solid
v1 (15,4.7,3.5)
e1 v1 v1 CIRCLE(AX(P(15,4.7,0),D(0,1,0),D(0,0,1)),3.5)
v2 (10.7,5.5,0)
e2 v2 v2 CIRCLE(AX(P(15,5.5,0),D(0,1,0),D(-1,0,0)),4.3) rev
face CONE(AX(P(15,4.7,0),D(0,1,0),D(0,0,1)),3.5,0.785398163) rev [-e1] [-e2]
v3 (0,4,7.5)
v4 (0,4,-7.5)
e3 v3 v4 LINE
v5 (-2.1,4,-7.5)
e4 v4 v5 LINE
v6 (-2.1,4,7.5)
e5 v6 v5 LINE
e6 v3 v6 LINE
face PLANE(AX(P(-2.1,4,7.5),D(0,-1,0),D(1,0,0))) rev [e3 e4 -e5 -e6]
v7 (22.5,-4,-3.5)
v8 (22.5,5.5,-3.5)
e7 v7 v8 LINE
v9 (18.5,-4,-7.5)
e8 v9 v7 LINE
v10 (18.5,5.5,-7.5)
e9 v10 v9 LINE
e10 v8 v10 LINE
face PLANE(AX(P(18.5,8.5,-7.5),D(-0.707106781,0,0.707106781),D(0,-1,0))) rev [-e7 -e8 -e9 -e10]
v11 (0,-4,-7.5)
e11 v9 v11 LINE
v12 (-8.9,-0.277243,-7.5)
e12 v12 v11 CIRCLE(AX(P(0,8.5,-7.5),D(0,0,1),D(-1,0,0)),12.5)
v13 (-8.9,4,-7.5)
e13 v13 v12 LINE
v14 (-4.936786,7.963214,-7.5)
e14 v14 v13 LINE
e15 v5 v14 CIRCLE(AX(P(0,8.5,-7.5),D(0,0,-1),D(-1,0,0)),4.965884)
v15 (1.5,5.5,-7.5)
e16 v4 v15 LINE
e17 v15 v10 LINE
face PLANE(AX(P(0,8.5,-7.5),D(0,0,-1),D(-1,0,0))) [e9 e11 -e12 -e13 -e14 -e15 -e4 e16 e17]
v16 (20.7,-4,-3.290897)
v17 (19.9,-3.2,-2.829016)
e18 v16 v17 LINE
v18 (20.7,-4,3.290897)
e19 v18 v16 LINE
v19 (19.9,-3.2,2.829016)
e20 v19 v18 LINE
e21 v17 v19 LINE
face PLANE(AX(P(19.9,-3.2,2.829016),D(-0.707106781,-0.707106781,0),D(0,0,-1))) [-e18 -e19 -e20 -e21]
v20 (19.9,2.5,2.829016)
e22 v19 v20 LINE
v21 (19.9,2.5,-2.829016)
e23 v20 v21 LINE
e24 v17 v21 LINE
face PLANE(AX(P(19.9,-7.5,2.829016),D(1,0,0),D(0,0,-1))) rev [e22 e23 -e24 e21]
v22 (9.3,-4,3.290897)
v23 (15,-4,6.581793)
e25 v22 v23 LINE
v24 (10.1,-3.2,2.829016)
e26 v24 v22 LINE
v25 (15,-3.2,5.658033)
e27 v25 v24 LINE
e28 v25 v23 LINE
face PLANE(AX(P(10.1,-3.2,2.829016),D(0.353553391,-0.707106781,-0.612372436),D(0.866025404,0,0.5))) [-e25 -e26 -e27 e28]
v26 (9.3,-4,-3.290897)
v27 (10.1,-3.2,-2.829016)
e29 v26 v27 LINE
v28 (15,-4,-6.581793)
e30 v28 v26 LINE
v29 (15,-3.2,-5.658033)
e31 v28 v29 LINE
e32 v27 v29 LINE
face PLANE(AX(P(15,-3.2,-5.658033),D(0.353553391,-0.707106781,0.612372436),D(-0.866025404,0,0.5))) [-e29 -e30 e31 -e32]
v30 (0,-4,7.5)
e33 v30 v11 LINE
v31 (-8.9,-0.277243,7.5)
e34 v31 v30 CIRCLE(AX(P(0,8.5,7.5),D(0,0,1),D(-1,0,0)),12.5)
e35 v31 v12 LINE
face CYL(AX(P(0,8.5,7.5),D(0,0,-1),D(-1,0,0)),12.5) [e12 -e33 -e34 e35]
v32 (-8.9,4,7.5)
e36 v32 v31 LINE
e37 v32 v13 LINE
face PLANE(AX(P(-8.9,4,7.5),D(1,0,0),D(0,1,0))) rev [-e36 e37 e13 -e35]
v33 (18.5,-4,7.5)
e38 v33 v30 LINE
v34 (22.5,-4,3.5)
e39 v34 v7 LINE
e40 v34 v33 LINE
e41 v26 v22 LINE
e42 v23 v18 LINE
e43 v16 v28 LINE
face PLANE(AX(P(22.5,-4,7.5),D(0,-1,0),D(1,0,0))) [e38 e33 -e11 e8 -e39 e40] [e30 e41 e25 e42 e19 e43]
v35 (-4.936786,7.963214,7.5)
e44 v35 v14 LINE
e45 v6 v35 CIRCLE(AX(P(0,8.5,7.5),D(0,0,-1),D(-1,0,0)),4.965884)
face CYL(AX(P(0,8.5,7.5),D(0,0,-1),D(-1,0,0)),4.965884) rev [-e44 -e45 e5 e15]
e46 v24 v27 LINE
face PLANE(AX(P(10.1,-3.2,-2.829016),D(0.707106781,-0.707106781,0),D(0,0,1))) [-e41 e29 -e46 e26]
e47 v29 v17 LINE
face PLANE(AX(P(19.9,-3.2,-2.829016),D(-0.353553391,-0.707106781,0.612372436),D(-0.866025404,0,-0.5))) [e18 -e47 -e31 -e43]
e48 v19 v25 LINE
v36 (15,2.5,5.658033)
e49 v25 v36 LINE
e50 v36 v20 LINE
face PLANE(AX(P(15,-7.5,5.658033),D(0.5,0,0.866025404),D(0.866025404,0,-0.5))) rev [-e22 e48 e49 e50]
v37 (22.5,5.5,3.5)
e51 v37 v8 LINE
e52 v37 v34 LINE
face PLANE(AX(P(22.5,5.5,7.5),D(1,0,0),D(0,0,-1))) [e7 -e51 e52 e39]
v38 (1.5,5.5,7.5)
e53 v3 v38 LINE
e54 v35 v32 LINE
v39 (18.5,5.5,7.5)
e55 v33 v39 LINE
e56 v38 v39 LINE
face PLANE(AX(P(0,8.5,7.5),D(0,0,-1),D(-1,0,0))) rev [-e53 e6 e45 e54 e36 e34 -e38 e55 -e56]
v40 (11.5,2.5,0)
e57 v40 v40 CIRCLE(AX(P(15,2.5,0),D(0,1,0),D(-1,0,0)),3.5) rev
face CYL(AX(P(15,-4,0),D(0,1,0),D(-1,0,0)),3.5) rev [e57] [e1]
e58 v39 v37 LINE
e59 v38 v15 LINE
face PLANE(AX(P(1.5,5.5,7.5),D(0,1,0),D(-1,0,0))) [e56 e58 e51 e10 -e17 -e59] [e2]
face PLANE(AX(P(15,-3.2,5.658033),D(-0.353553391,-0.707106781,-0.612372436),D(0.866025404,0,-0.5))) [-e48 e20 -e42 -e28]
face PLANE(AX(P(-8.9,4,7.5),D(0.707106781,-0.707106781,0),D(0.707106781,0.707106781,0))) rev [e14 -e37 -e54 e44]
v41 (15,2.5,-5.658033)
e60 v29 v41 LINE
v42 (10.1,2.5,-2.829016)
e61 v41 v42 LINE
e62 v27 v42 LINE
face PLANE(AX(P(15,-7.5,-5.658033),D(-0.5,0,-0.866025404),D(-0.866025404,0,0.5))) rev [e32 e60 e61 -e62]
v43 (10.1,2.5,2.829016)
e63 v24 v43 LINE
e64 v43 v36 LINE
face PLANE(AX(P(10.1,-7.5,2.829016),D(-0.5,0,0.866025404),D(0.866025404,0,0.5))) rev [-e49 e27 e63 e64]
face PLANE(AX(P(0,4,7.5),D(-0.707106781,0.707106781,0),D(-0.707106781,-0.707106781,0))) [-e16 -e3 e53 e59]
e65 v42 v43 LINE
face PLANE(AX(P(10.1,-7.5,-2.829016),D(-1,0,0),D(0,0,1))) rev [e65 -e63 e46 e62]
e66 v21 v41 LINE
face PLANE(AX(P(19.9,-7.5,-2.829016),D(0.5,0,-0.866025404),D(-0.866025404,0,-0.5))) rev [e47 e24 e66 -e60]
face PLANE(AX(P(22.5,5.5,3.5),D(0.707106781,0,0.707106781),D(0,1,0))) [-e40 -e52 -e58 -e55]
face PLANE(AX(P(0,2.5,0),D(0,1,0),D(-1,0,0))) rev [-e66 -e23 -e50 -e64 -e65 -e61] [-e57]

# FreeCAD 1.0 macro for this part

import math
import FreeCAD as App
import Part
import Sketcher
Q = App.Units.Quantity


def edges_at(feature, points):
    """Names of the edges that pass closest to the given points."""
    edges = feature.Shape.Edges
    near = lambda p: min(range(len(edges)), key=lambda i: edges[i].distToShape(Part.Vertex(*p))[0])
    return sorted({f"Edge{near(p) + 1}" for p in points})


def add_polygon(sketch, points):
    """Adds a closed chain of lines whose ends are joined by coincident constraints."""
    first, n = sketch.GeometryCount, len(points)
    for a, b in zip(points, points[1:] + points[:1]):
        sketch.addGeometry(Part.LineSegment(App.Vector(*a, 0), App.Vector(*b, 0)), False)
    for i in range(n):
        sketch.addConstraint(Sketcher.Constraint("Coincident", first + i, 2, first + (i + 1) % n, 1))

doc = App.newDocument("Part")
params = doc.addObject("Spreadsheet::Sheet", "Params")
for row, (alias, value) in enumerate([
    ("sketch1_radius", "12.5 mm"),
    ("sketch1_height", "8 mm"),
    ("sketch1_width", "2.1 mm"),
    ("pad1_length", "15 mm"),
    ("sketch2_width", "21 mm"),
    ("sketch2_height", "8 mm"),
    ("sketch2_width2", "22.5 mm"),
    ("pad2_length", "15 mm"),
    ("sketch3_diameter", "7 mm"),
    ("pocket2_length", "10 mm"),
    ("chamfer_size", "4 mm"),
    ("chamfer2_size", "0.8 mm"),
], start=1):
    params.set(f"A{row}", alias)
    params.set(f"B{row}", "=" + value)
    params.setAlias(f"B{row}", alias)

body = doc.addObject("PartDesign::Body", "Body")

sketch1 = body.newObject("Sketcher::SketchObject", "Sketch")
sketch1.AttachmentSupport = (doc.getObject("XY_Plane"), [""])
sketch1.MapMode = "FlatFace"
sketch1.addGeometry([
    Part.LineSegment(App.Vector(-4.936786, 7.963214, 0), App.Vector(-8.9, 4, 0)),
    Part.LineSegment(App.Vector(-8.9, 4, 0), App.Vector(-8.9, -0.277243, 0)),
    Part.ArcOfCircle(Part.Circle(App.Vector(0, 8.5, 0), App.Vector(0, 0, 1), 12.5), math.radians(-135.397875), math.radians(-90)),
    Part.LineSegment(App.Vector(0, -4, 0), App.Vector(0, 4, 0)),
    Part.LineSegment(App.Vector(0, 4, 0), App.Vector(-2.1, 4, 0)),
    Part.ArcOfCircle(Part.Circle(App.Vector(0, 8.5, 0), App.Vector(0, 0, 1), 4.965884), math.radians(-173.794496), math.radians(-115.016893)),
], False)
sketch1.addConstraint([
    Sketcher.Constraint("Coincident", 0, 2, 1, 1),
    Sketcher.Constraint("Coincident", 1, 2, 2, 1),
    Sketcher.Constraint("Coincident", 2, 2, 3, 1),
    Sketcher.Constraint("Coincident", 3, 2, 4, 1),
    Sketcher.Constraint("Coincident", 4, 2, 5, 2),
    Sketcher.Constraint("Coincident", 5, 1, 0, 1),
    Sketcher.Constraint("Vertical", 1),
    Sketcher.Constraint("Vertical", 3),
    Sketcher.Constraint("Horizontal", 4),
    Sketcher.Constraint("Coincident", 5, 3, 2, 3),
    Sketcher.Constraint("Symmetric", 2, 2, 3, 2, -1, 1),
    Sketcher.Constraint("PointOnObject", 2, 3, -2),
    Sketcher.Constraint("Horizontal", 0, 2, 3, 2),
    Sketcher.Constraint("Radius", 2, Q("12.5 mm")),
    Sketcher.Constraint("DistanceY", 3, 1, 3, 2, Q("8 mm")),
    Sketcher.Constraint("Angle", 0, Q("-135 deg")),
    Sketcher.Constraint("DistanceX", 4, 2, 4, 1, Q("2.1 mm")),
    Sketcher.Constraint("DistanceX", 0, 2, -1, 1, Q("8.9 mm")),
])
sketch1.setExpression("Constraints[13]", "Params.sketch1_radius")
sketch1.setExpression("Constraints[14]", "Params.sketch1_height")
sketch1.setExpression("Constraints[16]", "Params.sketch1_width")
pad1 = body.newObject("PartDesign::Pad", "Pad")
pad1.Profile = sketch1
pad1.setExpression("Length", "Params.pad1_length")
pad1.Midplane = True

sketch2 = body.newObject("Sketcher::SketchObject", "Sketch001")
sketch2.AttachmentSupport = (doc.getObject("XY_Plane"), [""])
sketch2.MapMode = "FlatFace"
sketch2.AttachmentOffset = App.Placement(App.Vector(0, 0, -7.5), App.Rotation())
add_polygon(sketch2, [(0, 4), (1.5, 5.5), (22.5, 5.5), (22.5, -4), (0, -4)])
sketch2.addConstraint([
    Sketcher.Constraint("Horizontal", 1),
    Sketcher.Constraint("Vertical", 2),
    Sketcher.Constraint("Horizontal", 3),
    Sketcher.Constraint("Vertical", 4),
    Sketcher.Constraint("Symmetric", 3, 2, 4, 2, -1, 1),
    Sketcher.Constraint("DistanceX", 1, 1, 1, 2, Q("21 mm")),
    Sketcher.Constraint("DistanceY", 4, 1, 4, 2, Q("8 mm")),
    Sketcher.Constraint("Angle", 0, Q("45 deg")),
    Sketcher.Constraint("DistanceX", 3, 2, 3, 1, Q("22.5 mm")),
])
sketch2.setExpression("Constraints[10]", "Params.sketch2_width")
sketch2.setExpression("Constraints[11]", "Params.sketch2_height")
sketch2.setExpression("Constraints[13]", "Params.sketch2_width2")
pad2 = body.newObject("PartDesign::Pad", "Pad001")
pad2.Profile = sketch2
pad2.setExpression("Length", "Params.pad2_length")

sketch3 = body.newObject("Sketcher::SketchObject", "Sketch002")
sketch3.AttachmentSupport = (doc.getObject("XZ_Plane"), [""])
sketch3.MapMode = "FlatFace"
sketch3.AttachmentOffset = App.Placement(App.Vector(0, 0, -5.5), App.Rotation())
sketch3.addGeometry(Part.Circle(App.Vector(15, 0, 0), App.Vector(0, 0, 1), 3.5), False)
sketch3.addConstraint([
    Sketcher.Constraint("PointOnObject", 0, 3, -1),
    Sketcher.Constraint("Diameter", 0, Q("7 mm")),
    Sketcher.Constraint("DistanceX", -1, 1, 0, 3, Q("15 mm")),
])
sketch3.setExpression("Constraints[1]", "Params.sketch3_diameter")
pocket1 = body.newObject("PartDesign::Pocket", "Pocket")
pocket1.Profile = sketch3
pocket1.Type = "ThroughAll"
pocket1.Reversed = True

sketch4 = body.newObject("Sketcher::SketchObject", "Sketch003")
sketch4.AttachmentSupport = (doc.getObject("XZ_Plane"), [""])
sketch4.MapMode = "FlatFace"
sketch4.AttachmentOffset = App.Placement(App.Vector(0, 0, -2.5), App.Rotation())
add_polygon(sketch4, [(15, -5.658033), (10.1, -2.829016), (10.1, 2.829016), (15, 5.658033), (19.9, 2.829016), (19.9, -2.829016)])
sketch4.addConstraint([
    Sketcher.Constraint("Vertical", 1),
    Sketcher.Constraint("Vertical", 4),
    Sketcher.Constraint("Symmetric", 2, 2, 5, 2, -1),
    Sketcher.Constraint("Parallel", 0, 3),
    Sketcher.Constraint("Parallel", 2, 5),
    Sketcher.Constraint("Horizontal", 1, 2, 3, 2),
    Sketcher.Constraint("Horizontal", 0, 2, 4, 2),
    Sketcher.Constraint("Angle", 0, Q("150 deg")),
    Sketcher.Constraint("DistanceX", -1, 1, 2, 2, Q("15 mm")),
    Sketcher.Constraint("DistanceX", -1, 1, 0, 2, Q("10.1 mm")),
    Sketcher.Constraint("DistanceY", 1, 1, 1, 2, Q("5.658033 mm")),
])
pocket2 = body.newObject("PartDesign::Pocket", "Pocket001")
pocket2.Profile = sketch4
pocket2.setExpression("Length", "Params.pocket2_length")
pocket2.Reversed = True
doc.recompute()

chamfer = body.newObject("PartDesign::Chamfer", "Chamfer")
chamfer.Base = (pocket2, edges_at(pocket2, [(22.5, 0.75, 7.5), (22.5, 0.75, -7.5)]))
chamfer.setExpression("Size", "Params.chamfer_size")
doc.recompute()

chamfer2 = body.newObject("PartDesign::Chamfer", "Chamfer001")
chamfer2.Base = (chamfer, edges_at(chamfer, [
    (11.5, 5.5, 0),
    (12.55, -4, -4.244),
    (10.1, -4, 0),
    (12.55, -4, 4.244),
    (17.45, -4, 4.244),
    (19.9, -4, 0),
    (17.45, -4, -4.244),
]))
chamfer2.setExpression("Size", "Params.chamfer2_size")

doc.recompute()
